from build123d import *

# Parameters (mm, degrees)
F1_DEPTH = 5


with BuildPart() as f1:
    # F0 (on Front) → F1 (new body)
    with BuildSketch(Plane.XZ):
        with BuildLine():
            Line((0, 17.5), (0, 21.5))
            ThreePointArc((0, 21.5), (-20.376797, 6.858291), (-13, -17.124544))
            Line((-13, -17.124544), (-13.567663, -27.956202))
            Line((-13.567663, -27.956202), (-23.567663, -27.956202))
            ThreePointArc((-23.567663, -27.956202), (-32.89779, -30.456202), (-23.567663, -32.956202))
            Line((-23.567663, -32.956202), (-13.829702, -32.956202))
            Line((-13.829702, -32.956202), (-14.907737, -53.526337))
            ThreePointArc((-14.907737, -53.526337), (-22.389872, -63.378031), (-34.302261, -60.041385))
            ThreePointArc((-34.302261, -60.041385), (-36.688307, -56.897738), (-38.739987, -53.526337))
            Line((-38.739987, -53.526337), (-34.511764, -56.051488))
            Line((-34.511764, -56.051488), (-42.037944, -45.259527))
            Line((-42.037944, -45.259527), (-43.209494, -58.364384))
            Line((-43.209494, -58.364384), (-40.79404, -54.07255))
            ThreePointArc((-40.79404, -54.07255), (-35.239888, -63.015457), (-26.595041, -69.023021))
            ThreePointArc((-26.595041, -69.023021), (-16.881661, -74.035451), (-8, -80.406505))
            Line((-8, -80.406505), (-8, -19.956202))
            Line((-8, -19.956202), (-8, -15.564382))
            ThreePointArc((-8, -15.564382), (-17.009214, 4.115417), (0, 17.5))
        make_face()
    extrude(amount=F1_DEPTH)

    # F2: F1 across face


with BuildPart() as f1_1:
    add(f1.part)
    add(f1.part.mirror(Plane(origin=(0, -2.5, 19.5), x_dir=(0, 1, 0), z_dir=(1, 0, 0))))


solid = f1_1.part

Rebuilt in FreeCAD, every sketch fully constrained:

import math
import FreeCAD as App
import Part
import Sketcher

V = App.Vector

doc = App.newDocument("Part")
params = doc.addObject("Spreadsheet::Sheet", "Params")
for row, (alias, value) in enumerate([
    ("sketch1_radius", "5 mm"),
    ("sketch1_radius2", "11 mm"),
    ("sketch1_radius3", "75.000002 mm"),
    ("sketch1_radius4", "21.5 mm"),
    ("sketch1_radius5", "17.5 mm"),
    ("pad1_length", "5 mm"),
], start=1):
    params.set(f"A{row}", alias)
    params.set(f"B{row}", "=" + value)
    params.setAlias(f"B{row}", alias)

body = doc.addObject("PartDesign::Body", "Body")

# Sketch on XZ plane
sketch1 = body.newObject("Sketcher::SketchObject", "Sketch")
sketch1.AttachmentSupport = (doc.getObject("XZ_Plane"), [""])
sketch1.MapMode = "FlatFace"
sketch1.addGeometry([
    Part.LineSegment(V(0, 17.5, 0), V(0, 21.5, 0)),  # 0
    Part.ArcOfCircle(Part.Circle(V(0, 0, 0), V(0, 0, 1), 21.5), math.radians(89.999999), math.radians(232.796257)),  # 1
    Part.LineSegment(V(-13, -17.124544, 0), V(-13.567663, -27.956202, 0)),  # 2
    Part.LineSegment(V(-13.567663, -27.956202, 0), V(-23.567663, -27.956202, 0)),  # 3
    Part.ArcOfCircle(Part.Circle(V(-27.89779, -30.456202, 0), V(0, 0, 1), 5), math.radians(30), math.radians(330)),  # 4
    Part.LineSegment(V(-23.567663, -32.956202, 0), V(-13.829702, -32.956202, 0)),  # 5
    Part.LineSegment(V(-13.829702, -32.956202, 0), V(-14.907737, -53.526337, 0)),  # 6
    Part.ArcOfCircle(Part.Circle(V(-25.892662, -52.950641, 0), V(0, 0, 1), 11), math.radians(-139.863327), math.radians(-3.000004)),  # 7
    Part.ArcOfCircle(Part.Circle(V(-4.86867, -35.223787, 0), V(0, 0, 1), 38.499993), math.radians(-151.615189), math.radians(-139.86333)),  # 8
    Part.LineSegment(V(-38.739987, -53.526337, 0), V(-34.511764, -56.051488, 0)),  # 9
    Part.LineSegment(V(-34.511764, -56.051488, 0), V(-42.037944, -45.259527, 0)),  # 10
    Part.LineSegment(V(-42.037944, -45.259527, 0), V(-43.209494, -58.364384, 0)),  # 11
    Part.LineSegment(V(-43.209494, -58.364384, 0), V(-40.79404, -54.07255, 0)),  # 12
    Part.ArcOfCircle(Part.Circle(V(-16.387412, -45.110584, 0), V(0, 0, 1), 26.000006), math.radians(-159.837071), math.radians(-113.11644)),  # 13
    Part.ArcOfCircle(Part.Circle(V(-56.040111, -138.001192, 0), V(0, 0, 1), 75.000002), math.radians(50.168291), math.radians(66.883567)),  # 14
    Part.LineSegment(V(-8, -80.406505, 0), V(-8, -15.564382, 0)),  # 15
    Part.ArcOfCircle(Part.Circle(V(-0.000001, 0, 0), V(0, 0, 1), 17.5), math.radians(89.999997), math.radians(242.797108)),  # 16
], False)
sketch1.addConstraint([
    Sketcher.Constraint("Coincident", 0, 2, 1, 1),
    Sketcher.Constraint("Coincident", 1, 2, 2, 1),
    Sketcher.Constraint("Coincident", 2, 2, 3, 1),
    Sketcher.Constraint("Coincident", 3, 2, 4, 1),
    Sketcher.Constraint("Coincident", 4, 2, 5, 1),
    Sketcher.Constraint("Coincident", 5, 2, 6, 1),
    Sketcher.Constraint("Coincident", 6, 2, 7, 2),
    Sketcher.Constraint("Coincident", 7, 1, 8, 2),
    Sketcher.Constraint("Coincident", 8, 1, 9, 1),
    Sketcher.Constraint("Coincident", 9, 2, 10, 1),
    Sketcher.Constraint("Coincident", 10, 2, 11, 1),
    Sketcher.Constraint("Coincident", 11, 2, 12, 1),
    Sketcher.Constraint("Coincident", 12, 2, 13, 1),
    Sketcher.Constraint("Coincident", 13, 2, 14, 2),
    Sketcher.Constraint("Coincident", 14, 1, 15, 1),
    Sketcher.Constraint("Coincident", 15, 2, 16, 2),
    Sketcher.Constraint("Coincident", 16, 1, 0, 1),
    Sketcher.Constraint("Vertical", 0),
    Sketcher.Constraint("Horizontal", 3),
    Sketcher.Constraint("Horizontal", 5),
    Sketcher.Constraint("Vertical", 15),
    Sketcher.Constraint("Coincident", 1, 3, -1, 1),
    Sketcher.Constraint("Coincident", 16, 3, -1, 1),
    Sketcher.Constraint("PointOnObject", 0, 2, -2),
    Sketcher.Constraint("Radius", 4, 5.0),
    Sketcher.Constraint("Radius", 7, 11.0),
    Sketcher.Constraint("Radius", 14, 75.000002),
    Sketcher.Constraint("Radius", 1, 21.5),
    Sketcher.Constraint("Radius", 16, 17.5),
    Sketcher.Constraint("DistanceX", 3, 2, 3, 1, 10.0),
    Sketcher.Constraint("DistanceX", 1, 2, -1, 1, 13.0),
    Sketcher.Constraint("DistanceX", 14, 1, -1, 1, 8.0),
    Sketcher.Constraint("DistanceY", 4, 2, 3, 2, 5.0),
    Sketcher.Constraint("DistanceX", 4, 2, 2, 2, 10.0),
    Sketcher.Constraint("Radius", 8, 38.499993),
    Sketcher.Constraint("Radius", 13, 26.000006),
    Sketcher.Constraint("DistanceX", 7, 3, 2, 2, 12.324999),
    Sketcher.Constraint("DistanceY", 7, 1, 11, 2, 1.677001),
    Sketcher.Constraint("DistanceX", 5, 1, 5, 2, 9.737961),
    Sketcher.Constraint("DistanceY", 4, 2, -1, 1, 32.956202),
    Sketcher.Constraint("DistanceX", 5, 2, -1, 1, 13.829702),
    Sketcher.Constraint("DistanceX", 14, 3, 13, 3, 39.652699),
    Sketcher.Constraint("DistanceX", 7, 1, 7, 3, 8.409599),
    Sketcher.Constraint("DistanceY", 7, 1, 13, 3, 14.930801),
    Sketcher.Constraint("DistanceX", 9, 2, 7, 3, 8.619102),
    Sketcher.Constraint("Distance", 9, 4.924861),
    Sketcher.Constraint("Distance", 10, 13.15712),
    Sketcher.Constraint("Distance", 11, 13.15712),
    Sketcher.Constraint("Distance", 12, 4.924861),
    Sketcher.Constraint("DistanceY", 15, 1, 15, 2, 64.842123),
    Sketcher.Constraint("DistanceY", 7, 3, -1, 1, 52.950641),
    Sketcher.Constraint("DistanceX", 8, 3, -1, 1, 4.86867),
    Sketcher.Constraint("DistanceX", 12, 2, -1, 1, 40.79404),
    Sketcher.Constraint("DistanceX", 13, 2, -1, 1, 26.595041),
    Sketcher.Constraint("DistanceY", 6, 2, 8, 3, 18.30255),
    Sketcher.Constraint("DistanceY", 7, 1, 8, 1, 6.515048),
])
sketch1.setExpression("Constraints[24]", "Params.sketch1_radius")
sketch1.setExpression("Constraints[25]", "Params.sketch1_radius2")
sketch1.setExpression("Constraints[26]", "Params.sketch1_radius3")
sketch1.setExpression("Constraints[27]", "Params.sketch1_radius4")
sketch1.setExpression("Constraints[28]", "Params.sketch1_radius5")
pad1 = body.newObject("PartDesign::Pad", "Pad")
pad1.Profile = sketch1
pad1.setExpression("Length", "Params.pad1_length")
body2 = doc.addObject("PartDesign::Body", "Body001")
doc.recompute()

body2.BaseFeature = body
doc.recompute()

mirroring = doc.addObject("Part::Mirroring", "Mirroring")
mirroring.Source = body
mirroring.Base = V(0, -2.5, 19.5)
mirroring.Normal = V(1, 0, 0)
body3 = doc.addObject("PartDesign::Body", "Body002")
body3.BaseFeature = mirroring
boolean = body2.newObject("PartDesign::Boolean", "Boolean")
boolean.Type = "Fuse"
boolean.addObjects([body3])
doc.recompute()
mirroring.Visibility = False

doc.recompute()
